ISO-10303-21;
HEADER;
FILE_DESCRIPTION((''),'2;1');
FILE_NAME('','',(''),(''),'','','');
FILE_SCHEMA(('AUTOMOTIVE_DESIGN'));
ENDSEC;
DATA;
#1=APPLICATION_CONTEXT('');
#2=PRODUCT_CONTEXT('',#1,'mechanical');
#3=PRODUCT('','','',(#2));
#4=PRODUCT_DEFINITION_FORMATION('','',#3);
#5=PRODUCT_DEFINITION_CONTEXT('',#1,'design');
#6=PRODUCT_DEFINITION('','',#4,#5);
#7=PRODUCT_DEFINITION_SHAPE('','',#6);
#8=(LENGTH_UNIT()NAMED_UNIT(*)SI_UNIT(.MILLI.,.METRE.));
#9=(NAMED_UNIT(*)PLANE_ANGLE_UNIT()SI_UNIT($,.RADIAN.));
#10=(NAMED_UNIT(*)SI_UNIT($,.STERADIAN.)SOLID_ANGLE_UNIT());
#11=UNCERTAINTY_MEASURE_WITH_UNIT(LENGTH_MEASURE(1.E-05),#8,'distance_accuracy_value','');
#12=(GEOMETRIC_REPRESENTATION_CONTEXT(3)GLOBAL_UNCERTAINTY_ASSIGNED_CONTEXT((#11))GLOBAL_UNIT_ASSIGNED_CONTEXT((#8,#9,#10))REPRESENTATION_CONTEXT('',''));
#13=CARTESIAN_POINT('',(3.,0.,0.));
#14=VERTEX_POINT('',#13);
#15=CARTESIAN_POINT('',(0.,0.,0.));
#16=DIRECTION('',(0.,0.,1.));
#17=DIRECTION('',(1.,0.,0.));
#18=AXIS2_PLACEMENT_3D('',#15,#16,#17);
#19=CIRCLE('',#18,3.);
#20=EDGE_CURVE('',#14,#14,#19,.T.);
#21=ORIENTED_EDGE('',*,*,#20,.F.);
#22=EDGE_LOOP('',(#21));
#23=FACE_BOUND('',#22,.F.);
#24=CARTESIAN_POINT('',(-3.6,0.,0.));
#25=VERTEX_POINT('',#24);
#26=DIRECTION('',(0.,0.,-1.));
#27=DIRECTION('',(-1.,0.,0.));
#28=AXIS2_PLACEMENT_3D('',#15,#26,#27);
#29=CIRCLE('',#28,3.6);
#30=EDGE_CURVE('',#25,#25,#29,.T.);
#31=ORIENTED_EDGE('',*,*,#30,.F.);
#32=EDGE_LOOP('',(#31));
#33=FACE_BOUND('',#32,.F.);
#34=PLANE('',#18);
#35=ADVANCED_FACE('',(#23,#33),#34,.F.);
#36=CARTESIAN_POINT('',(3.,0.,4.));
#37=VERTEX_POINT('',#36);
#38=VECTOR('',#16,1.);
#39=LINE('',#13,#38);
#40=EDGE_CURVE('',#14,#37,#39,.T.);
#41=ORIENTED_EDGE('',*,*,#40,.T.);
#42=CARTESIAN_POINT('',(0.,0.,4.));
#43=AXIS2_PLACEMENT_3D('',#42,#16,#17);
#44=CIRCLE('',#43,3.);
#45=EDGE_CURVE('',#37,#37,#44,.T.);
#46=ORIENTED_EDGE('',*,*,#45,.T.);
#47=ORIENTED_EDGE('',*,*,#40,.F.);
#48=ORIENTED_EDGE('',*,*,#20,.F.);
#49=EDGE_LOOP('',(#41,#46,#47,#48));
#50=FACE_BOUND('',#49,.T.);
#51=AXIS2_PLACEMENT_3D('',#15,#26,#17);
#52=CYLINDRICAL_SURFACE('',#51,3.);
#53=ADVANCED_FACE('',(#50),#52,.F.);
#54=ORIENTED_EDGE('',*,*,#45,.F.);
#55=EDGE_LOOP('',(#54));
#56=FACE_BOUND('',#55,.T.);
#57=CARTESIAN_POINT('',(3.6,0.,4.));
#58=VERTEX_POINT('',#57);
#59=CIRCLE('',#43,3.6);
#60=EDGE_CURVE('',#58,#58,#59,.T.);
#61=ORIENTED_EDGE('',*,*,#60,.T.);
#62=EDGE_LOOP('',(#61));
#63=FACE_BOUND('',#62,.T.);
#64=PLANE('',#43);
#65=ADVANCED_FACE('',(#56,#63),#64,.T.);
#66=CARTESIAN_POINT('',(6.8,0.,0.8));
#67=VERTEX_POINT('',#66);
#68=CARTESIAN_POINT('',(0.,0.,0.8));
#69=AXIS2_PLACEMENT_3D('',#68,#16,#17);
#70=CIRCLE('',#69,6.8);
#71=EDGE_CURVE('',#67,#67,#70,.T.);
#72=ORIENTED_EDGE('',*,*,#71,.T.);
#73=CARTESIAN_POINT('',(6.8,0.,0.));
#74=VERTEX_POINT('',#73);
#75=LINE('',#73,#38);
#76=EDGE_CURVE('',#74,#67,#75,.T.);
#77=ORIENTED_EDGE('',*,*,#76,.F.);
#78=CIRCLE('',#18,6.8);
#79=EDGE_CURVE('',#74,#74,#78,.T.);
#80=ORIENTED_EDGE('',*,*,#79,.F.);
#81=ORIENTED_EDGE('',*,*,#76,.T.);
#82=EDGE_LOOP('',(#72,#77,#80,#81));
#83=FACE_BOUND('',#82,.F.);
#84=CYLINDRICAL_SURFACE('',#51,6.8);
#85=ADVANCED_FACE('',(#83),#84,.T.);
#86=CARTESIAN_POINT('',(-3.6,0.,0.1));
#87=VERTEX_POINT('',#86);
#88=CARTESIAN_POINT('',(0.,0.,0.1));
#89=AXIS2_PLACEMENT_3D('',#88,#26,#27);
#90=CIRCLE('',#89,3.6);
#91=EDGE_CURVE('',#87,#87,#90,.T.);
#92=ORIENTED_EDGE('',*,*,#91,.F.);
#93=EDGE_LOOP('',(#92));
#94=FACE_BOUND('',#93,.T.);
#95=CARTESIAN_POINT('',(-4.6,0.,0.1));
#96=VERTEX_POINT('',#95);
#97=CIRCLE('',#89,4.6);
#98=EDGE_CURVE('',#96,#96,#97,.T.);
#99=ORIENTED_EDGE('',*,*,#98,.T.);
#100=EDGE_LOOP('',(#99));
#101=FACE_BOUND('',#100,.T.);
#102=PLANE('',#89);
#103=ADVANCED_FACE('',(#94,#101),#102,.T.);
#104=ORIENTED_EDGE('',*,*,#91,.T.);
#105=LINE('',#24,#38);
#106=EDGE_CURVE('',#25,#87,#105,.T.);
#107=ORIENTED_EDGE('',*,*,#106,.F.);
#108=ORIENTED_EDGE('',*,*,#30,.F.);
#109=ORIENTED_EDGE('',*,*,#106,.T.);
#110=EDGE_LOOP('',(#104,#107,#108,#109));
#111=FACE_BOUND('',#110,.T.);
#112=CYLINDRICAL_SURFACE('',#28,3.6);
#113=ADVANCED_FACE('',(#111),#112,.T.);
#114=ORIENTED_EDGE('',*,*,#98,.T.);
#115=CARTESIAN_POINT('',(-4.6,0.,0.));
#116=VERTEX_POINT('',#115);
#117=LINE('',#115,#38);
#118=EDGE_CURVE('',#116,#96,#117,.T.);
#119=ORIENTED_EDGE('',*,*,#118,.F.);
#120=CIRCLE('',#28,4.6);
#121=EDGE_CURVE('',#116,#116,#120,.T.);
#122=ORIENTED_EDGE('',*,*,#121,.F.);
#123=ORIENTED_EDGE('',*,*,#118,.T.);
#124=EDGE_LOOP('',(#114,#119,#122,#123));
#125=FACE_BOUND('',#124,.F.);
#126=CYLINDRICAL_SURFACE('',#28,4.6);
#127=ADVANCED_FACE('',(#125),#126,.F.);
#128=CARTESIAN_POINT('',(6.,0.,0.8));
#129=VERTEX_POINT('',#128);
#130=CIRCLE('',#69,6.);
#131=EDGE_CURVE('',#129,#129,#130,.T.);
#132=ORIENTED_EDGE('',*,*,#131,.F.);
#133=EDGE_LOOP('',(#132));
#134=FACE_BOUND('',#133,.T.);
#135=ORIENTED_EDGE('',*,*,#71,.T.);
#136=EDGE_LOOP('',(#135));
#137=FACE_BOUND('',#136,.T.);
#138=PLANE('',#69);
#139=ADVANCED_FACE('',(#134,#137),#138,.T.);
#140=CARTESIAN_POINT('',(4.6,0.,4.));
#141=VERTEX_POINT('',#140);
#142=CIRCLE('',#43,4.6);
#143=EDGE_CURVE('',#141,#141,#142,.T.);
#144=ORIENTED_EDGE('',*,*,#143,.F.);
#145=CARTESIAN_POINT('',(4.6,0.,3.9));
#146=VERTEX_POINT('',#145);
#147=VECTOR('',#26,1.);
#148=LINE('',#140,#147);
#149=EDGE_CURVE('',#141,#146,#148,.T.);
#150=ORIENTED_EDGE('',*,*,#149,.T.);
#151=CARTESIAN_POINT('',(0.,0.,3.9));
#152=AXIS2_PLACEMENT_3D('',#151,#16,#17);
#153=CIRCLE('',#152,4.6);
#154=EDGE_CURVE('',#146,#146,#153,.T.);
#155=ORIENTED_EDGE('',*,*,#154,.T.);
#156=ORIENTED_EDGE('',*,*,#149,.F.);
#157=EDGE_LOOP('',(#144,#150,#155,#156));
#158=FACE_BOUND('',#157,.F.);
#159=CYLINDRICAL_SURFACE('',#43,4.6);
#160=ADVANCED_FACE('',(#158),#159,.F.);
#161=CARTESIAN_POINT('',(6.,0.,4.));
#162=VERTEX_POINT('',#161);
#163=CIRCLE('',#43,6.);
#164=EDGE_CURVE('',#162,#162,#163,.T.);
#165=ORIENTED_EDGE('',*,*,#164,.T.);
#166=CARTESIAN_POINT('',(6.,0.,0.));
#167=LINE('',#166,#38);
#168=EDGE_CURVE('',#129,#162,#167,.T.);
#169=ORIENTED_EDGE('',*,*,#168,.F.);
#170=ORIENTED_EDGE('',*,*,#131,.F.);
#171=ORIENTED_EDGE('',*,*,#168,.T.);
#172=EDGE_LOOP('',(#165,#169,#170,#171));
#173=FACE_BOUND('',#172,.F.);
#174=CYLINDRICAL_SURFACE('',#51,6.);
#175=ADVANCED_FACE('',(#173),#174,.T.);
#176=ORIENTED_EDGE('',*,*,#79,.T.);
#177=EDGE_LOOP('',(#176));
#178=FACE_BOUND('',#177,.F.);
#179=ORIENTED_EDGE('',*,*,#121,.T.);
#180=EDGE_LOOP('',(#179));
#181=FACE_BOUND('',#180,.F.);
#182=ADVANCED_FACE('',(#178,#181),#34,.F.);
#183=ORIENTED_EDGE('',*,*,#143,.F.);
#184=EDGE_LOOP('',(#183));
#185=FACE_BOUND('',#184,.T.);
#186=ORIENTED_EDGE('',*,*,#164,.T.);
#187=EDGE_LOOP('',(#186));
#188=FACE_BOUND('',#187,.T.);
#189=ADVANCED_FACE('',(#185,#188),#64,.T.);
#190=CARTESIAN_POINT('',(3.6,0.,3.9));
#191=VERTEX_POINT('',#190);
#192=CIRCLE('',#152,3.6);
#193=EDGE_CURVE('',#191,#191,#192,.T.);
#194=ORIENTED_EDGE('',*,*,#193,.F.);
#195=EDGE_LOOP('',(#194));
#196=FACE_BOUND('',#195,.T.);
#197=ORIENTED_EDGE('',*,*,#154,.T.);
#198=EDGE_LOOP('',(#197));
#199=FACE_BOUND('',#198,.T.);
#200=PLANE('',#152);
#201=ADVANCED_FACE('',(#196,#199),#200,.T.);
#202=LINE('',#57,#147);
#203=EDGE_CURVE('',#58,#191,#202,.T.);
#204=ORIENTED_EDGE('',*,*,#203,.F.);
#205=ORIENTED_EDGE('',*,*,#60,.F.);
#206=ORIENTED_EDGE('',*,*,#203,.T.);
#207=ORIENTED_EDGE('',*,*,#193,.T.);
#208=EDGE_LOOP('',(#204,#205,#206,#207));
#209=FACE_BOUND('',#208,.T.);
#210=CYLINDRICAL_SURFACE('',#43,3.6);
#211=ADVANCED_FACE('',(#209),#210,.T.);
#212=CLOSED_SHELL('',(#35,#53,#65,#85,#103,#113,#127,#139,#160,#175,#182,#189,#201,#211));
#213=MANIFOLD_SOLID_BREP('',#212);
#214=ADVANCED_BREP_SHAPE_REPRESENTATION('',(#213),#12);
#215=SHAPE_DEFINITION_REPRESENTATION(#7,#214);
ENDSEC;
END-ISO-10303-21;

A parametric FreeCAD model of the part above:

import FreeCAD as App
import Part
import Sketcher
from FreeCAD import Vector
Q = App.Units.Quantity

doc = App.newDocument("Part")
body = doc.addObject("PartDesign::Body", "Body")

# Sketch on XY plane
sketch1 = body.newObject("Sketcher::SketchObject", "Sketch")
sketch1.AttachmentSupport = (doc.getObject("XY_Plane"), [""])
sketch1.MapMode = "FlatFace"
sketch1.addGeometry(Part.Circle(Vector(0, 0, 0), Vector(0, 0, 1), 6), False)
sketch1.addGeometry(Part.Circle(Vector(0, 0, 0), Vector(0, 0, 1), 3), False)
sketch1.addConstraint(Sketcher.Constraint("Coincident", 0, 3, -1, 1))
sketch1.addConstraint(Sketcher.Constraint("Coincident", 1, 3, -1, 1))
sketch1.addConstraint(Sketcher.Constraint("Diameter", 0, Q("12 mm")))
sketch1.addConstraint(Sketcher.Constraint("Diameter", 1, Q("6 mm")))
pad1 = body.newObject("PartDesign::Pad", "Pad")
pad1.Profile = sketch1
pad1.Length = 4

# Sketch on XY plane
sketch2 = body.newObject("Sketcher::SketchObject", "Sketch001")
sketch2.AttachmentSupport = (doc.getObject("XY_Plane"), [""])
sketch2.MapMode = "FlatFace"
sketch2.addGeometry(Part.Circle(Vector(0, 0, 0), Vector(0, 0, 1), 7), False)
sketch2.addGeometry(Part.Circle(Vector(0, 0, 0), Vector(0, 0, 1), 6), False)
sketch2.addConstraint(Sketcher.Constraint("Coincident", 0, 3, -1, 1))
sketch2.addConstraint(Sketcher.Constraint("Coincident", 1, 3, -1, 1))
sketch2.addConstraint(Sketcher.Constraint("Diameter", 1, Q("12 mm")))
sketch2.addConstraint(Sketcher.Constraint("Diameter", 0, Q("13.6 mm")))
pad2 = body.newObject("PartDesign::Pad", "Pad001")
pad2.Profile = sketch2
pad2.Length = 0.8

# Sketch on XY plane
sketch3 = body.newObject("Sketcher::SketchObject", "Sketch002")
sketch3.AttachmentSupport = (doc.getObject("XY_Plane"), [""])
sketch3.MapMode = "FlatFace"
sketch3.addGeometry(Part.Circle(Vector(0, 0, 0), Vector(0, 0, 1), 4.6), False)
sketch3.addGeometry(Part.Circle(Vector(0, 0, 0), Vector(0, 0, 1), 3.6), False)
sketch3.addConstraint(Sketcher.Constraint("Coincident", 0, 3, -1, 1))
sketch3.addConstraint(Sketcher.Constraint("Coincident", 1, 3, -1, 1))
sketch3.addConstraint(Sketcher.Constraint("Diameter", 0, Q("9.2 mm")))
sketch3.addConstraint(Sketcher.Constraint("Diameter", 1, Q("7.2 mm")))
pocket1 = body.newObject("PartDesign::Pocket", "Pocket")
pocket1.Profile = sketch3
pocket1.Length = 0.1
pocket1.Reversed = True

# Sketch on XY plane
sketch4 = body.newObject("Sketcher::SketchObject", "Sketch003")
sketch4.AttachmentSupport = (doc.getObject("XY_Plane"), [""])
sketch4.MapMode = "FlatFace"
sketch4.AttachmentOffset = App.Placement(Vector(0, 0, 4), App.Rotation())
sketch4.addGeometry(Part.Circle(Vector(0, 0, 0), Vector(0, 0, 1), 4.6), False)
sketch4.addGeometry(Part.Circle(Vector(0, 0, 0), Vector(0, 0, 1), 3.6), False)
sketch4.addConstraint(Sketcher.Constraint("Coincident", 0, 3, -1, 1))
sketch4.addConstraint(Sketcher.Constraint("Coincident", 1, 3, -1, 1))
sketch4.addConstraint(Sketcher.Constraint("Diameter", 0, Q("9.2 mm")))
sketch4.addConstraint(Sketcher.Constraint("Diameter", 1, Q("7.2 mm")))
pocket2 = body.newObject("PartDesign::Pocket", "Pocket001")
pocket2.Profile = sketch4
pocket2.Length = 0.1

doc.recompute()
